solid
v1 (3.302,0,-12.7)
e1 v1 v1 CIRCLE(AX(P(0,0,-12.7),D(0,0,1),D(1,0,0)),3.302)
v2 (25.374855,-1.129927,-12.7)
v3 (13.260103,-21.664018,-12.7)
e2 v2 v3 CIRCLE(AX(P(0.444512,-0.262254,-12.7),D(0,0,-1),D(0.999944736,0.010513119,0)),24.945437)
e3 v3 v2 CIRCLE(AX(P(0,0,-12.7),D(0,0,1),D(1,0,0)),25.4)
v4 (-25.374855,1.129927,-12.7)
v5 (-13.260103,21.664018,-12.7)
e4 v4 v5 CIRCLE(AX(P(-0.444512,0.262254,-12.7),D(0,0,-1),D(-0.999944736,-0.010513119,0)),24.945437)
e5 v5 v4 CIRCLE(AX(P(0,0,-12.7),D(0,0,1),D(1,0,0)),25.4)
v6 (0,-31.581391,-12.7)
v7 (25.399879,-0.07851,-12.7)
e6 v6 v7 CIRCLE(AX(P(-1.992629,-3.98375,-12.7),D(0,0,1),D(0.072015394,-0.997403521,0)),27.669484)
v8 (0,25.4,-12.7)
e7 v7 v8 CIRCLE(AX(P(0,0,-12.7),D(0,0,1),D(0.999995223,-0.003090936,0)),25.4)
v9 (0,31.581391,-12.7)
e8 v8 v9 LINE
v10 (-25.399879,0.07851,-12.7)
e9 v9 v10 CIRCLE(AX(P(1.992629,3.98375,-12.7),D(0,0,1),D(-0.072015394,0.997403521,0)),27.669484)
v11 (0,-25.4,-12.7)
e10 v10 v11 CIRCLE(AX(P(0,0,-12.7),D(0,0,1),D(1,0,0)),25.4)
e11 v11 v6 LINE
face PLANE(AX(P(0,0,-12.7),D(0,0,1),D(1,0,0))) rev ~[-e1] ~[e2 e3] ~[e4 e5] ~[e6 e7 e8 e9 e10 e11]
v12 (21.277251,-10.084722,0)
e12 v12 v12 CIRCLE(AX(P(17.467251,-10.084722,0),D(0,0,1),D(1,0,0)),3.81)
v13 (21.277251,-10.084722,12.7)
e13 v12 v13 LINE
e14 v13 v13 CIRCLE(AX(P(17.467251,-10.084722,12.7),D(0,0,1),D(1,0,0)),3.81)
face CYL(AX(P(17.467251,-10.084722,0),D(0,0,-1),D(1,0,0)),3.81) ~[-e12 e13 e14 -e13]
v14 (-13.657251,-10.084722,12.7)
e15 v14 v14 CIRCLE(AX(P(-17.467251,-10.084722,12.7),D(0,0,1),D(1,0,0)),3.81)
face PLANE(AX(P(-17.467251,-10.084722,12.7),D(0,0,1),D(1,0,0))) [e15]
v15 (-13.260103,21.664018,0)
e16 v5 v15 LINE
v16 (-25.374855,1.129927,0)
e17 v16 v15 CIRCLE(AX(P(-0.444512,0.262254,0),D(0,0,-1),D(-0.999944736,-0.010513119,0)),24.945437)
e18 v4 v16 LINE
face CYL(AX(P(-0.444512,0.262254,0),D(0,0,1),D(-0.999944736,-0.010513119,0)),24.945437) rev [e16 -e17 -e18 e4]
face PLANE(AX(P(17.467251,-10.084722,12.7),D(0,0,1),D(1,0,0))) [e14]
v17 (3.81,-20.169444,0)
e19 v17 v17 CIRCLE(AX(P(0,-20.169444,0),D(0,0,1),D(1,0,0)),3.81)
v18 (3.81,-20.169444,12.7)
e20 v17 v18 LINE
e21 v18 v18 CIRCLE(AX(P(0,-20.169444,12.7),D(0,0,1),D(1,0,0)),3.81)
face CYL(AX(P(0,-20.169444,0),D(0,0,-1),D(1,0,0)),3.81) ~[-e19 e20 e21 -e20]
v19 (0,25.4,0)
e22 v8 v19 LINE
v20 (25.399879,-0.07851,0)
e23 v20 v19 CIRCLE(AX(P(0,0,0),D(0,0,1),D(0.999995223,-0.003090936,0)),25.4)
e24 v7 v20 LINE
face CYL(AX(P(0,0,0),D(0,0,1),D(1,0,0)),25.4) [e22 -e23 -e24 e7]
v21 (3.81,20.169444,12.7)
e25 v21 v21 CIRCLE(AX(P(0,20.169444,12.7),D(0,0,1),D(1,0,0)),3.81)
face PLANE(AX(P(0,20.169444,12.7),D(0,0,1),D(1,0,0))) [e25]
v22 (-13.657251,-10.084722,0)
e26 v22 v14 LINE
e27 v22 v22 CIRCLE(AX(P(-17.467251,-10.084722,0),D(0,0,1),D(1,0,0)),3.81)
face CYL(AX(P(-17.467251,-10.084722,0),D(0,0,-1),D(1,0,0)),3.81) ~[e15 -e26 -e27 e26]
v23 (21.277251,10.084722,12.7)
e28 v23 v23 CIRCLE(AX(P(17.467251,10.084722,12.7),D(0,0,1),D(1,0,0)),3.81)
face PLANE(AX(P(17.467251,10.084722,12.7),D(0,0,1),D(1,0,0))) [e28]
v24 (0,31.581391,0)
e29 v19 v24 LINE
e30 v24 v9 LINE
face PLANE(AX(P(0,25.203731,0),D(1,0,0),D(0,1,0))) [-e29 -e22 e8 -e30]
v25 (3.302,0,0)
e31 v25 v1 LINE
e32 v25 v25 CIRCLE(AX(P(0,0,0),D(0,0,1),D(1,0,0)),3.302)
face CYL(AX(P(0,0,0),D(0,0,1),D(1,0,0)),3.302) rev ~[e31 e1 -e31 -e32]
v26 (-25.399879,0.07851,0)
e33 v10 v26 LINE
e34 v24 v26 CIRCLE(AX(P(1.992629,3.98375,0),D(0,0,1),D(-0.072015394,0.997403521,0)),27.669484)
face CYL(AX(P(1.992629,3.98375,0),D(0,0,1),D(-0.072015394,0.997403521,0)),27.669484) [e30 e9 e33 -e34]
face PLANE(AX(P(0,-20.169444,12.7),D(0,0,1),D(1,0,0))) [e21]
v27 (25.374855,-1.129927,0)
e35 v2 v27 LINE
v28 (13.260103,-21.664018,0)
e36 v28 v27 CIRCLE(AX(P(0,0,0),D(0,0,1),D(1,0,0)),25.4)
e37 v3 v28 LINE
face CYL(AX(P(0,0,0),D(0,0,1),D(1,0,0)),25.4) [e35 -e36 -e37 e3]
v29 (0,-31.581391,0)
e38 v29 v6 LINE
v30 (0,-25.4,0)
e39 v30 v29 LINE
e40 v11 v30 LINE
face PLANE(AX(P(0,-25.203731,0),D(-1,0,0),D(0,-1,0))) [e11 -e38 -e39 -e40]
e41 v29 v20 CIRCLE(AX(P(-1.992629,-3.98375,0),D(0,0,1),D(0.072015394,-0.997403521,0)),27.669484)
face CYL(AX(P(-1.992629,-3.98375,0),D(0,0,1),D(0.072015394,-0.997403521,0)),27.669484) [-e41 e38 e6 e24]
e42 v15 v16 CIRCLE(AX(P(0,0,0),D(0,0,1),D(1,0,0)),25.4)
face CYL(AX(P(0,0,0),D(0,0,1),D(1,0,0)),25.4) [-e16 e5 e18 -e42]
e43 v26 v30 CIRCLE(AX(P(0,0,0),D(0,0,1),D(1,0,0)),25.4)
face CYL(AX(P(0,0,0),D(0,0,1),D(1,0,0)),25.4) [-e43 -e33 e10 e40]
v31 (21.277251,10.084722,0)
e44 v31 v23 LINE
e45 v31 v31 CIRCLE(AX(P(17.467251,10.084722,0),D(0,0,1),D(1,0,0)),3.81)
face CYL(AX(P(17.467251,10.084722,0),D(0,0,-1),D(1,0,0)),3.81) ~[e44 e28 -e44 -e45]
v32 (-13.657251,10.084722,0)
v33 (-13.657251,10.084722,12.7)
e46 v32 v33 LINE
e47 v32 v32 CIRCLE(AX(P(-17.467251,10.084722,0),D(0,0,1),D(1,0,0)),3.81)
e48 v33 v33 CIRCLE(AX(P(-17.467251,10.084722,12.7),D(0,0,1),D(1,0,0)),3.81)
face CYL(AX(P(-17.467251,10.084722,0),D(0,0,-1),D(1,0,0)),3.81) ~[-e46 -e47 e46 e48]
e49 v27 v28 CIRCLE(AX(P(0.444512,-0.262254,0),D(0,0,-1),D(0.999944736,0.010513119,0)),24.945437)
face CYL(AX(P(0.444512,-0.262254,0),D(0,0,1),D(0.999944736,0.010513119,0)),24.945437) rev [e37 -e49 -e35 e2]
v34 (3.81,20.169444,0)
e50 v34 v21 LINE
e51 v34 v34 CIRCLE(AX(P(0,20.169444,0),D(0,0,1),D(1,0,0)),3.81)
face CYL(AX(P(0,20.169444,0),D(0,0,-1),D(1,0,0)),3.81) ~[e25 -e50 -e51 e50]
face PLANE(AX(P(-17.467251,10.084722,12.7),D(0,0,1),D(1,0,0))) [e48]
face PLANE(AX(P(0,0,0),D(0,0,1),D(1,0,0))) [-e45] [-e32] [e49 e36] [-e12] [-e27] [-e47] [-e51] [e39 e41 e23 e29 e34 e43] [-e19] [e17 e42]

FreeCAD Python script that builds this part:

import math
import FreeCAD as App
import Part
import Sketcher

V = App.Vector
Q = App.Units.Quantity

doc = App.newDocument("Part")
params = doc.addObject("Spreadsheet::Sheet", "Params")
for row, (alias, value) in enumerate([
    ("sketch1_diameter", "2 in"),
    ("pad1_length", "0.5 in"),
    ("sketch2_width", "1.078 in"),
    ("pad2_length", "0.5 in"),
    ("sketch3_diameter", "0.3 in"),
    ("pad3_length", "0.5 in"),
    ("sketch4_diameter", "0.26 in"),
    ("pocket1_length", "0.5 in"),
], start=1):
    params.set(f"A{row}", alias)
    params.set(f"B{row}", "=" + value)
    params.setAlias(f"B{row}", alias)

body = doc.addObject("PartDesign::Body", "Body")

sketch1 = doc.addObject("Sketcher::SketchObject", "Sketch")
body.addObject(sketch1)
sketch1.AttachmentSupport = (doc.XY_Plane, [""])
sketch1.MapMode = "FlatFace"
sketch1.addGeometry(Part.Circle(V(0, 0, 0), V(0, 0, 1), 25), False)
sketch1.addConstraint(Sketcher.Constraint("Coincident", 0, 3, -1, 1))
sketch1.addConstraint(Sketcher.Constraint("Diameter", 0, Q("2 in")))
sketch1.setExpression("Constraints[1]", "Params.sketch1_diameter")
pad1 = doc.addObject("PartDesign::Pad", "Pad")
body.addObject(pad1)
pad1.Profile = sketch1
pad1.setExpression("Length", "Params.pad1_length")
pad1.Reversed = True

sketch2 = doc.addObject("Sketcher::SketchObject", "Sketch001")
body.addObject(sketch2)
sketch2.AttachmentSupport = (doc.XY_Plane, [""])
sketch2.MapMode = "FlatFace"
sketch2.addGeometry(Part.ArcOfCircle(Part.Circle(V(0, 0, 0), V(0, 0, 1), 25), math.radians(89), math.radians(181)), False)
sketch2.addGeometry(Part.LineSegment(V(0, 25, 0), V(0, 32, 0)), False)
sketch2.addGeometry(Part.ArcOfCircle(Part.Circle(V(2, 4, 0), V(0, 0, 1), 28), math.radians(94), math.radians(188)), False)
sketch2.addGeometry(Part.LineSegment(V(0, -25, 0), V(0, -32, 0)), False)
sketch2.addGeometry(Part.ArcOfCircle(Part.Circle(V(-2, -4, 0), V(0, 0, 1), 28), math.radians(-86), math.radians(8)), False)
sketch2.addGeometry(Part.ArcOfCircle(Part.Circle(V(0, 0, 0), V(0, 0, 1), 25), math.radians(-91), math.radians(1)), False)
sketch2.addConstraint(Sketcher.Constraint("Coincident", 0, 1, 1, 1))
sketch2.addConstraint(Sketcher.Constraint("Coincident", 1, 2, 2, 1))
sketch2.addConstraint(Sketcher.Constraint("Coincident", 2, 2, 0, 2))
sketch2.addConstraint(Sketcher.Constraint("Coincident", 3, 2, 4, 1))
sketch2.addConstraint(Sketcher.Constraint("Coincident", 4, 2, 5, 2))
sketch2.addConstraint(Sketcher.Constraint("Coincident", 5, 1, 3, 1))
sketch2.addConstraint(Sketcher.Constraint("Vertical", 1))
sketch2.addConstraint(Sketcher.Constraint("Vertical", 3))
sketch2.addConstraint(Sketcher.Constraint("Equal", 2, 4))
sketch2.addConstraint(Sketcher.Constraint("Equal", 0, 5))
sketch2.addConstraint(Sketcher.Constraint("Symmetric", 2, 3, 4, 3, -1, 1))
sketch2.addConstraint(Sketcher.Constraint("Symmetric", 0, 3, 5, 3, -1, 1))
sketch2.addConstraint(Sketcher.Constraint("Symmetric", 1, 2, 3, 2, -1))
sketch2.addConstraint(Sketcher.Constraint("PointOnObject", 2, 2, -1))
sketch2.addConstraint(Sketcher.Constraint("DistanceX", 2, 2, 2, 3, Q("1.078 in")))
sketch2.addConstraint(Sketcher.Constraint("Radius", 0, 24.945437))
sketch2.addConstraint(Sketcher.Constraint("Radius", 2, 27.669484))
sketch2.addConstraint(Sketcher.Constraint("DistanceX", 4, 3, 2, 3, Q("0.1568999 in")))
sketch2.addConstraint(Sketcher.Constraint("DistanceY", 1, 1, 1, 2, 6.37766))
sketch2.setExpression("Constraints[14]", "Params.sketch2_width")
pad2 = doc.addObject("PartDesign::Pad", "Pad001")
body.addObject(pad2)
pad2.Profile = sketch2
pad2.setExpression("Length", "Params.pad2_length")
pad2.Reversed = True

sketch3 = doc.addObject("Sketcher::SketchObject", "Sketch002")
body.addObject(sketch3)
sketch3.AttachmentSupport = (doc.XY_Plane, [""])
sketch3.MapMode = "FlatFace"
sketch3.addGeometry(Part.Circle(V(-17.5, 10.1, 0), V(0, 0, 1), 3.8), False)
sketch3.addGeometry(Part.Circle(V(0, 20.2, 0), V(0, 0, 1), 3.8), False)
sketch3.addGeometry(Part.Circle(V(17.5, 10.1, 0), V(0, 0, 1), 3.8), False)
sketch3.addGeometry(Part.Circle(V(17.5, -10.1, 0), V(0, 0, 1), 3.8), False)
sketch3.addGeometry(Part.Circle(V(0, -20.2, 0), V(0, 0, 1), 3.8), False)
sketch3.addGeometry(Part.Circle(V(-17.5, -10.1, 0), V(0, 0, 1), 3.8), False)
sketch3.addConstraint(Sketcher.Constraint("Equal", 0, 1))
sketch3.addConstraint(Sketcher.Constraint("Equal", 1, 2))
sketch3.addConstraint(Sketcher.Constraint("Equal", 2, 3))
sketch3.addConstraint(Sketcher.Constraint("Equal", 3, 4))
sketch3.addConstraint(Sketcher.Constraint("Equal", 4, 5))
sketch3.addConstraint(Sketcher.Constraint("Symmetric", 0, 3, 3, 3, -1, 1))
sketch3.addConstraint(Sketcher.Constraint("Symmetric", 1, 3, 4, 3, -1, 1))
sketch3.addConstraint(Sketcher.Constraint("Symmetric", 2, 3, 5, 3, -1, 1))
sketch3.addConstraint(Sketcher.Constraint("Symmetric", 0, 3, 2, 3, -2))
sketch3.addConstraint(Sketcher.Constraint("PointOnObject", 1, 3, -2))
sketch3.addConstraint(Sketcher.Constraint("Diameter", 0, Q("0.3 in")))
sketch3.addConstraint(Sketcher.Constraint("DistanceX", 0, 3, -1, 1, 17.467251))
sketch3.addConstraint(Sketcher.Constraint("DistanceY", -1, 1, 0, 3, 10.084722))
sketch3.addConstraint(Sketcher.Constraint("DistanceY", 0, 3, 1, 3, 10.084722))
sketch3.setExpression("Constraints[10]", "Params.sketch3_diameter")
pad3 = doc.addObject("PartDesign::Pad", "Pad002")
body.addObject(pad3)
pad3.Profile = sketch3
pad3.setExpression("Length", "Params.pad3_length")

sketch4 = doc.addObject("Sketcher::SketchObject", "Sketch003")
body.addObject(sketch4)
sketch4.AttachmentSupport = (doc.XY_Plane, [""])
sketch4.MapMode = "FlatFace"
sketch4.addGeometry(Part.Circle(V(0, 0, 0), V(0, 0, 1), 3.3), False)
sketch4.addConstraint(Sketcher.Constraint("Coincident", 0, 3, -1, 1))
sketch4.addConstraint(Sketcher.Constraint("Diameter", 0, Q("0.26 in")))
sketch4.setExpression("Constraints[1]", "Params.sketch4_diameter")
pocket1 = doc.addObject("PartDesign::Pocket", "Pocket")
body.addObject(pocket1)
pocket1.Profile = sketch4
pocket1.setExpression("Length", "Params.pocket1_length")

doc.recompute()
